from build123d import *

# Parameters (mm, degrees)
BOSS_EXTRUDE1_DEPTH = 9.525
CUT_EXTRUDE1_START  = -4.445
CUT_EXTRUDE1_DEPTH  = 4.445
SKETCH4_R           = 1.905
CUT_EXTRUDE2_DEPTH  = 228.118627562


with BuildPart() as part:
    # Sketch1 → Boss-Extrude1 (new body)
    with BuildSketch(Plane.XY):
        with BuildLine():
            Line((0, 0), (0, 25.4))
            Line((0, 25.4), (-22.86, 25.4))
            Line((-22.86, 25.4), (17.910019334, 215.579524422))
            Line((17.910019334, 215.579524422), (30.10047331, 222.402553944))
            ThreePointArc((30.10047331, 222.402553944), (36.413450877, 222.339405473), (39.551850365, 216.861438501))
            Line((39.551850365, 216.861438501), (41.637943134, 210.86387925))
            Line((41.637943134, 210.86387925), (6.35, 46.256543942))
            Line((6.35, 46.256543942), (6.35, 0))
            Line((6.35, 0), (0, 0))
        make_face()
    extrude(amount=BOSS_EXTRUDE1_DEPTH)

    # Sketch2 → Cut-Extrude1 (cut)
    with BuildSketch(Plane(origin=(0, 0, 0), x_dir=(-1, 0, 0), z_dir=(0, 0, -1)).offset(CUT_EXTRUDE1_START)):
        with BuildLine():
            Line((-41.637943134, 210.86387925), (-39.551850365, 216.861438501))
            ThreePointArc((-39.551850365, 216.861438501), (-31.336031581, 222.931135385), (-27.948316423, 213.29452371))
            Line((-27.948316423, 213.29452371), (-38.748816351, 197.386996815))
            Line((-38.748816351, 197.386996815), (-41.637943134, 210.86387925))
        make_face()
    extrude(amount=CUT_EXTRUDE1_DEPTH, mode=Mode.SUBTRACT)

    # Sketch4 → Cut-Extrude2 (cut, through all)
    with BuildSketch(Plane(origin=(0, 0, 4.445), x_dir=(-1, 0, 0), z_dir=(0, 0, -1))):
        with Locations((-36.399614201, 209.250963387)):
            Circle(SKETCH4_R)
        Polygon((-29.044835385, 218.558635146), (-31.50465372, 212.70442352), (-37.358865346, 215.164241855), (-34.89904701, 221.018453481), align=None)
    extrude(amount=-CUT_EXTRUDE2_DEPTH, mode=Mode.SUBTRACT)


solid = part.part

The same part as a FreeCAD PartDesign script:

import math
import FreeCAD as App
import Part
import Sketcher

V = App.Vector
Q = App.Units.Quantity


def add_polygon(sketch, points):
    """Adds a closed chain of lines whose ends are joined by coincident constraints."""
    first, n = sketch.GeometryCount, len(points)
    for a, b in zip(points, points[1:] + points[:1]):
        sketch.addGeometry(Part.LineSegment(App.Vector(*a, 0), App.Vector(*b, 0)), False)
    for i in range(n):
        sketch.addConstraint(Sketcher.Constraint("Coincident", first + i, 2, first + (i + 1) % n, 1))

doc = App.newDocument("Part")
body = doc.addObject("PartDesign::Body", "Body")

sketch1 = doc.addObject("Sketcher::SketchObject", "Sketch")
body.addObject(sketch1)
sketch1.AttachmentSupport = (doc.XY_Plane, [""])
sketch1.MapMode = "FlatFace"
sketch1.addGeometry([
    Part.LineSegment(V(0, 25, 0), V(0, 0, 0)),
    Part.LineSegment(V(0, 0, 0), V(6, 0, 0)),
    Part.LineSegment(V(6, 0, 0), V(6, 46, 0)),
    Part.LineSegment(V(6, 46, 0), V(42, 211, 0)),
    Part.LineSegment(V(42, 211, 0), V(40, 217, 0)),
    Part.ArcOfCircle(Part.Circle(V(33, 217, 0), V(0, 0, 1), 6), math.radians(0), math.radians(119)),
    Part.LineSegment(V(30, 222, 0), V(18, 216, 0)),
    Part.LineSegment(V(18, 216, 0), V(-23, 25, 0)),
    Part.LineSegment(V(-23, 25, 0), V(0, 25, 0)),
], False)
sketch1.addConstraint([
    Sketcher.Constraint("Coincident", 0, 2, 1, 1),
    Sketcher.Constraint("Coincident", 1, 2, 2, 1),
    Sketcher.Constraint("Coincident", 2, 2, 3, 1),
    Sketcher.Constraint("Coincident", 3, 2, 4, 1),
    Sketcher.Constraint("Coincident", 4, 2, 5, 1),
    Sketcher.Constraint("Tangent", 5, 2, 6, 1),
    Sketcher.Constraint("Coincident", 6, 2, 7, 1),
    Sketcher.Constraint("Coincident", 7, 2, 8, 1),
    Sketcher.Constraint("Coincident", 8, 2, 0, 1),
    Sketcher.Constraint("Vertical", 0),
    Sketcher.Constraint("Horizontal", 1),
    Sketcher.Constraint("Vertical", 2),
    Sketcher.Constraint("Horizontal", 8),
    Sketcher.Constraint("Coincident", 0, 2, -1, 1),
    Sketcher.Constraint("Parallel", 3, 7),
    Sketcher.Constraint("Horizontal", 5, 3, 4, 2),
    Sketcher.Constraint("DistanceY", 0, 2, 0, 1, Q("1 in")),
    Sketcher.Constraint("Radius", 5, Q("0.25 in")),
    Sketcher.Constraint("DistanceX", 8, 1, 8, 2, Q("0.9 in")),
    Sketcher.Constraint("DistanceX", 1, 1, 1, 2, Q("0.25 in")),
    Sketcher.Constraint("Distance", 4, Q("0.25 in")),
    Sketcher.Constraint("Distance", 6, Q("0.55 in")),
    Sketcher.Constraint("Distance", 7, Q("7.6575002 in")),
    Sketcher.Constraint("Distance", 3, 168.347301),
    Sketcher.Constraint("DistanceY", 2, 1, 2, 2, 46.256544),
    Sketcher.Constraint("DistanceX", -1, 1, 5, 3, 33.20185),
])
pad1 = doc.addObject("PartDesign::Pad", "Pad")
body.addObject(pad1)
pad1.Profile = sketch1
pad1.Length = Q("0.375 in")

sketch2 = doc.addObject("Sketcher::SketchObject", "Sketch001")
body.addObject(sketch2)
sketch2.AttachmentSupport = (doc.XY_Plane, [""])
sketch2.MapMode = "FlatFace"
sketch2.AttachmentOffset = App.Placement(V(0, 0, 0.175 * 25.4), App.Rotation())
sketch2.addGeometry([
    Part.LineSegment(V(40, 217, 0), V(42, 211, 0)),
    Part.LineSegment(V(42, 211, 0), V(39, 197, 0)),
    Part.LineSegment(V(39, 197, 0), V(28, 213, 0)),
    Part.ArcOfCircle(Part.Circle(V(33, 217, 0), V(0, 0, 1), 6), math.radians(0), math.radians(214)),
], False)
sketch2.addConstraint([
    Sketcher.Constraint("Coincident", 0, 2, 1, 1),
    Sketcher.Constraint("Coincident", 1, 2, 2, 1),
    Sketcher.Constraint("Tangent", 2, 2, 3, 2),
    Sketcher.Constraint("Coincident", 3, 1, 0, 1),
    Sketcher.Constraint("Radius", 3, Q("0.25 in")),
    Sketcher.Constraint("Distance", 0, Q("0.25 in")),
    Sketcher.Constraint("DistanceX", 2, 2, 1, 2, 10.8005),
    Sketcher.Constraint("Distance", 2, 19.22759),
    Sketcher.Constraint("DistanceX", -1, 1, 3, 3, 33.20185),
    Sketcher.Constraint("DistanceY", -1, 1, 3, 3, 216.861439),
    Sketcher.Constraint("DistanceY", -1, 1, 0, 2, 210.863879),
    Sketcher.Constraint("DistanceY", -1, 1, 3, 1, 216.861439),
])
pocket1 = doc.addObject("PartDesign::Pocket", "Pocket")
body.addObject(pocket1)
pocket1.Profile = sketch2
pocket1.Length = Q("0.175 in")

sketch3 = doc.addObject("Sketcher::SketchObject", "Sketch002")
body.addObject(sketch3)
sketch3.AttachmentSupport = (doc.XY_Plane, [""])
sketch3.MapMode = "FlatFace"
sketch3.AttachmentOffset = App.Placement(V(0, 0, 0.175 * 25.4), App.Rotation())
sketch3.addGeometry(Part.Circle(V(36.4, 209.3, 0), V(0, 0, 1), 1.9), False)
add_polygon(sketch3, [(31.5, 212.7), (29, 218.6), (34.9, 221), (37.4, 215.2)])
sketch3.addConstraint([
    Sketcher.Constraint("Perpendicular", 1, 2),
    Sketcher.Constraint("Perpendicular", 2, 3),
    Sketcher.Constraint("Perpendicular", 3, 4),
    Sketcher.Constraint("Equal", 1, 2),
    Sketcher.Constraint("Diameter", 0, Q("0.15 in")),
    Sketcher.Constraint("Distance", 1, Q("0.25 in")),
    Sketcher.Constraint("DistanceY", -1, 1, 3, 2, 215.164242),
    Sketcher.Constraint("DistanceX", 1, 2, 0, 3, 7.354779),
    Sketcher.Constraint("DistanceY", 0, 3, 1, 2, 9.307672),
    Sketcher.Constraint("DistanceX", 1, 2, 2, 2, 5.854212),
    Sketcher.Constraint("DistanceX", -1, 1, 0, 3, 36.399614),
])
pocket2 = doc.addObject("PartDesign::Pocket", "Pocket001")
body.addObject(pocket2)
pocket2.Profile = sketch3
pocket2.Type = "ThroughAll"
pocket2.Reversed = True

doc.recompute()
